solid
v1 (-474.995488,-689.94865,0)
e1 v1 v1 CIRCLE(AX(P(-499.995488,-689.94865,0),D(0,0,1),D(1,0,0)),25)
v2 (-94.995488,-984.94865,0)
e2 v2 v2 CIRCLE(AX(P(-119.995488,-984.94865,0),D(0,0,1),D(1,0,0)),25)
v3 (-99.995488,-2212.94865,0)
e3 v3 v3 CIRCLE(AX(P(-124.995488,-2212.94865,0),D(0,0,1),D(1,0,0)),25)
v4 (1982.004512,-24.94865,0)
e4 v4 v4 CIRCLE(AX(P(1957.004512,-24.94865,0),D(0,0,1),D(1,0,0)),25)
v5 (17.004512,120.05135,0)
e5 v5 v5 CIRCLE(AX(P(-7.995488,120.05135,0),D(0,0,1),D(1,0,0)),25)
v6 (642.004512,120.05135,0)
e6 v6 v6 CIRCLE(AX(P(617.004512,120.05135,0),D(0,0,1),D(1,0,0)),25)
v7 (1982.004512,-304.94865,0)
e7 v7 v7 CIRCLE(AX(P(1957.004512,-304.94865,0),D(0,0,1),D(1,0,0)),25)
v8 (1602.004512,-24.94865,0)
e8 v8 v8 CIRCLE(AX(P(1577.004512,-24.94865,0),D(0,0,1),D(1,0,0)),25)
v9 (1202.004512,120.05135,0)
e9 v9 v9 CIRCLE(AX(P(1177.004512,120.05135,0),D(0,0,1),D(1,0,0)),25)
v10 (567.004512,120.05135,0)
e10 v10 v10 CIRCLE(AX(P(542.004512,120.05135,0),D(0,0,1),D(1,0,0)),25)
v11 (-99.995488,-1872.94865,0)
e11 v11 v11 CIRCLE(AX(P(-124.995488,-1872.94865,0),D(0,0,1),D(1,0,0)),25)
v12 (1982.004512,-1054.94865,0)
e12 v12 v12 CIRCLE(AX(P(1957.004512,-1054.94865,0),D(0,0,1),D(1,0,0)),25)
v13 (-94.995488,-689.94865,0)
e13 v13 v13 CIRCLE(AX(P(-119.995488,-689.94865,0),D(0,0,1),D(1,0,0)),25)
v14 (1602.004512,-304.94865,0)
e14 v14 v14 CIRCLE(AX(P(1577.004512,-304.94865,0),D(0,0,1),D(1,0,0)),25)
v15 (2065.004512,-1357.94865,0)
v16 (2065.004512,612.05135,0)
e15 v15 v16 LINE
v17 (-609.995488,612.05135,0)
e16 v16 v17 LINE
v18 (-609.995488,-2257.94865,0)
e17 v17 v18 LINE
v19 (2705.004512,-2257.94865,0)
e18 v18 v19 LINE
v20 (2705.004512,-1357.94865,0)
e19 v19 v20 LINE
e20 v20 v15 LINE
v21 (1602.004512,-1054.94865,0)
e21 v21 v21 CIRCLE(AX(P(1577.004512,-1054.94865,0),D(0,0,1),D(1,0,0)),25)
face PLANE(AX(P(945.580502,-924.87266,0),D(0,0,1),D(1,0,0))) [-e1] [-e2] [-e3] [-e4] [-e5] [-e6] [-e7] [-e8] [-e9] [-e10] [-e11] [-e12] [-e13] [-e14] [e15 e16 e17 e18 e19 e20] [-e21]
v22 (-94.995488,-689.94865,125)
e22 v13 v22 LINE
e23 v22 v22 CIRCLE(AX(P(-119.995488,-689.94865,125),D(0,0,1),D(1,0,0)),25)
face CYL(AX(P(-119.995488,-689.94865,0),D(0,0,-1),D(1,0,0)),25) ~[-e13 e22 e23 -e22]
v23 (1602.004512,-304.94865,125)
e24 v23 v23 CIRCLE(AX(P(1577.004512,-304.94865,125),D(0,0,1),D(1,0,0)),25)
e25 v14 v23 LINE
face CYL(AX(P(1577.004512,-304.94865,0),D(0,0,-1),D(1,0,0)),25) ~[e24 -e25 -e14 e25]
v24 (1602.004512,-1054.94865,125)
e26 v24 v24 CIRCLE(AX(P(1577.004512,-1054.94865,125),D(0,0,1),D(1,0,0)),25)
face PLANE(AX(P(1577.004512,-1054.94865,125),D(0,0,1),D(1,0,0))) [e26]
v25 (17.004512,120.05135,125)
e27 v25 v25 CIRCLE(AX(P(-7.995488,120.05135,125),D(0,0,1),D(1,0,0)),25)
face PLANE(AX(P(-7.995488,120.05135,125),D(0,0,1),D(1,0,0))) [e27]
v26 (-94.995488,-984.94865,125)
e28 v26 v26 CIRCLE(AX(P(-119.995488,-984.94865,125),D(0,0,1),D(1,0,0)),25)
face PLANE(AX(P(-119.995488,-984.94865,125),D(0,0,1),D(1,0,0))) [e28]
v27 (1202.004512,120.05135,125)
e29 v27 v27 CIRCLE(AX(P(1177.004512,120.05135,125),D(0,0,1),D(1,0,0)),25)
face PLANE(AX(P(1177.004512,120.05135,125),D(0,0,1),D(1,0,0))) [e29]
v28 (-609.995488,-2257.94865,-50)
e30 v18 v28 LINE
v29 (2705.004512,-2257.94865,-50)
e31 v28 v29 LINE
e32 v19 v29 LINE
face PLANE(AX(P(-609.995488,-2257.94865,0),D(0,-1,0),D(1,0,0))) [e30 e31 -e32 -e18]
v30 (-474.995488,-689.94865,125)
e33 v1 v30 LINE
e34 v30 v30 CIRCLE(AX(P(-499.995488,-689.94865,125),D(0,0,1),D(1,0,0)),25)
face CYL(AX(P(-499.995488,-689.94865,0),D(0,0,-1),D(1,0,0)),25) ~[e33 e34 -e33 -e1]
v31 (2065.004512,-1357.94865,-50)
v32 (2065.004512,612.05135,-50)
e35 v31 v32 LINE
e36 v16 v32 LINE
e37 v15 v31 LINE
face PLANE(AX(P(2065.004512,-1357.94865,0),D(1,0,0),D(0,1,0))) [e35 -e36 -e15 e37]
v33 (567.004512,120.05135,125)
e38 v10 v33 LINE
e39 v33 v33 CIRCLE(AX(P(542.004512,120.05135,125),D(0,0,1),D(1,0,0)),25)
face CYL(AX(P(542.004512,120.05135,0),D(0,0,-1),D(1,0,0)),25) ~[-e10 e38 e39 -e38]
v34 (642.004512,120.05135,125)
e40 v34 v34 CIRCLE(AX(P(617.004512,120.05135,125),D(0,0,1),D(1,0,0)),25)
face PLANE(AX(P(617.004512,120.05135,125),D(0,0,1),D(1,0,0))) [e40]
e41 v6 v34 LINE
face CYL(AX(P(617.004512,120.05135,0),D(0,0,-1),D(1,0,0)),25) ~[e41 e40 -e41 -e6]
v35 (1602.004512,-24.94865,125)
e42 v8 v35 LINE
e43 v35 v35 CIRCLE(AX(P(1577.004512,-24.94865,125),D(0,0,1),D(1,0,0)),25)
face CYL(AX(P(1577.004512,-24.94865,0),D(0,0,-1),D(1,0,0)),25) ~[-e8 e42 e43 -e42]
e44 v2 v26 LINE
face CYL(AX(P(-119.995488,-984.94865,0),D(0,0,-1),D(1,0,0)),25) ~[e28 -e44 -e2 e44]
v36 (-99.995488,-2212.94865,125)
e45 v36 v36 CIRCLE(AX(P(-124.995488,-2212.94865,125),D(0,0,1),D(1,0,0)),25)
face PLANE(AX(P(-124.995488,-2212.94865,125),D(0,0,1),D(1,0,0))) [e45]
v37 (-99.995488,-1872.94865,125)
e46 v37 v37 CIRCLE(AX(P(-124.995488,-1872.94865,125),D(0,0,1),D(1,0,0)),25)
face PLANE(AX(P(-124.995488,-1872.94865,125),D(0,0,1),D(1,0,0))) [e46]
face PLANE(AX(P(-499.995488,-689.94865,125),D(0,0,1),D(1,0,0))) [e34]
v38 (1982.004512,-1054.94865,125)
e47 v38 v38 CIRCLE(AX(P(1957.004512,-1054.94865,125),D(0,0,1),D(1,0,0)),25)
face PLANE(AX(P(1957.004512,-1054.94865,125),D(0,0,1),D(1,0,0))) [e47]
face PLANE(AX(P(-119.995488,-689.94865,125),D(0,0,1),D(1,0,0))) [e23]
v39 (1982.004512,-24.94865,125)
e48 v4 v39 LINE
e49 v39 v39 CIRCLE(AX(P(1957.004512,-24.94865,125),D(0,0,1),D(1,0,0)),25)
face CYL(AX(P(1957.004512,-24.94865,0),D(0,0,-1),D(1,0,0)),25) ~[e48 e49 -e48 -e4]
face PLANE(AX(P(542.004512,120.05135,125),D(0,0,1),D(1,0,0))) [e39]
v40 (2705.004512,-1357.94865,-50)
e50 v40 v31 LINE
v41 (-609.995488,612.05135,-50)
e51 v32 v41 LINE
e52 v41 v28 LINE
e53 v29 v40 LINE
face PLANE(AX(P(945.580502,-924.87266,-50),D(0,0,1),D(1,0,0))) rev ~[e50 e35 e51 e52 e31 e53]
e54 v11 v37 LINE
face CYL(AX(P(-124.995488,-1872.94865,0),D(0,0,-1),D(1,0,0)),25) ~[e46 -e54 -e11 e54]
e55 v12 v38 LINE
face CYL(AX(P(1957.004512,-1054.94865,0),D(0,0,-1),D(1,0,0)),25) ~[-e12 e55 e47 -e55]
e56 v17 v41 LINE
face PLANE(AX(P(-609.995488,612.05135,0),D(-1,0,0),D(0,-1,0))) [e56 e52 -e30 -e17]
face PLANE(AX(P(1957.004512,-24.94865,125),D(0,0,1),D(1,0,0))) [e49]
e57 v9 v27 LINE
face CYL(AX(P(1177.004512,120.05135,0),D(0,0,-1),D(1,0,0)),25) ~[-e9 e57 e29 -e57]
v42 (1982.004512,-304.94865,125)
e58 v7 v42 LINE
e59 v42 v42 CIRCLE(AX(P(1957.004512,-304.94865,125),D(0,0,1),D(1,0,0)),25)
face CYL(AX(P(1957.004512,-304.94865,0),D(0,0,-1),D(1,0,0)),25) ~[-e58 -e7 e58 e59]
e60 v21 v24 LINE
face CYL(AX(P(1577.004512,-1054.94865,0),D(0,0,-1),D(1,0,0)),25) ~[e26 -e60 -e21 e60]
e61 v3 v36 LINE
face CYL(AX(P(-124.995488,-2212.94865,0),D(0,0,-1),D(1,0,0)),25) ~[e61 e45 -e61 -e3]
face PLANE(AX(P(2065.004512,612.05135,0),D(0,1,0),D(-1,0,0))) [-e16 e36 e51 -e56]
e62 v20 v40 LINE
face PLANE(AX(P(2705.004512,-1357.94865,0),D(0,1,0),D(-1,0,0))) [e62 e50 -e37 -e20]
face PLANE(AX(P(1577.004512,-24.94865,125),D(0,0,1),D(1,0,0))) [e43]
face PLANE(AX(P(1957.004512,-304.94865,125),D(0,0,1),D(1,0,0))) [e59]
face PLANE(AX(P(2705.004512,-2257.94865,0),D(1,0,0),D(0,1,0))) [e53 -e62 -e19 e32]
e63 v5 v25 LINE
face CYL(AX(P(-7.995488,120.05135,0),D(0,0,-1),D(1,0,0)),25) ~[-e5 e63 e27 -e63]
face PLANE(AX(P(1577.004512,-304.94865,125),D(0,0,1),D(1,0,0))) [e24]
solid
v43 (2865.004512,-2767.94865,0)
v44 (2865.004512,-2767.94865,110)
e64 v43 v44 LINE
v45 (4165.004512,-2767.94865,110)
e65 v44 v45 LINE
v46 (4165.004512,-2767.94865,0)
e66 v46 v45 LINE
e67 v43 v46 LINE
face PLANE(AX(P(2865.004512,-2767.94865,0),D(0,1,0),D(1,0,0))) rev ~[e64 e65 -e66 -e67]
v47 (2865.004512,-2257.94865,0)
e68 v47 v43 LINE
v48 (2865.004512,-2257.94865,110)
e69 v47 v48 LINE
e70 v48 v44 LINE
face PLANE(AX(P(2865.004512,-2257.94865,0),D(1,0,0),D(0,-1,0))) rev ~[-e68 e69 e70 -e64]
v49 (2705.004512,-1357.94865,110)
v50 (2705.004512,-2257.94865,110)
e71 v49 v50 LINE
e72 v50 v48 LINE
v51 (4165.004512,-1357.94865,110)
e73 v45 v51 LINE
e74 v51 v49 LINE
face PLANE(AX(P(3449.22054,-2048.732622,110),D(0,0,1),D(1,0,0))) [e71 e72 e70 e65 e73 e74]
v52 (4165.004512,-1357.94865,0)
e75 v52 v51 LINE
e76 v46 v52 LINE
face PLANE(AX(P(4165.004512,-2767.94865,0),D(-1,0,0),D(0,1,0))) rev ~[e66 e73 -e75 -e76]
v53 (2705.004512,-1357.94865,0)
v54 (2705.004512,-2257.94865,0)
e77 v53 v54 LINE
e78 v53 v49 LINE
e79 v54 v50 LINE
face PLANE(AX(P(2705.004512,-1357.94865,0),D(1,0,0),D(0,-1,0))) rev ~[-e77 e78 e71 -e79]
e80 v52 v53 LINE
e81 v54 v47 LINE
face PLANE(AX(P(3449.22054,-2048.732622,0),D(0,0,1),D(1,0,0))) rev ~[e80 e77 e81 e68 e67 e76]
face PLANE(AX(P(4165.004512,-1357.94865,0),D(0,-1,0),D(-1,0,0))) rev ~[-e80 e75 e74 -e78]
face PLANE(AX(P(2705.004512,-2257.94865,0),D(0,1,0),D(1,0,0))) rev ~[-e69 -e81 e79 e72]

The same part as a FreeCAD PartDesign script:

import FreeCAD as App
import Part
import Sketcher

V = App.Vector


def add_polygon(sketch, points):
    """Adds a closed chain of lines whose ends are joined by coincident constraints."""
    first, n = sketch.GeometryCount, len(points)
    for a, b in zip(points, points[1:] + points[:1]):
        sketch.addGeometry(Part.LineSegment(App.Vector(*a, 0), App.Vector(*b, 0)), False)
    for i in range(n):
        sketch.addConstraint(Sketcher.Constraint("Coincident", first + i, 2, first + (i + 1) % n, 1))

doc = App.newDocument("Part")
body = doc.addObject("PartDesign::Body", "Body")

# Sketch on XY plane
sketch1 = doc.addObject("Sketcher::SketchObject", "Sketch")
body.addObject(sketch1)
sketch1.AttachmentSupport = (doc.XY_Plane, [""])
sketch1.MapMode = "FlatFace"
add_polygon(sketch1, [(-609.995488, 612.05135), (-609.995488, -2257.94865), (2705.004512, -2257.94865), (2705.004512, -1357.94865), (2065.004512, -1357.94865), (2065.004512, 612.05135)])  # lines 0-5
sketch1.addConstraint([
    Sketcher.Constraint("Vertical", 0),
    Sketcher.Constraint("Horizontal", 1),
    Sketcher.Constraint("Vertical", 2),
    Sketcher.Constraint("Horizontal", 3),
    Sketcher.Constraint("Vertical", 4),
    Sketcher.Constraint("Horizontal", 5),
    Sketcher.Constraint("DistanceX", 1, 1, 1, 2, 3315.0),
    Sketcher.Constraint("DistanceX", 3, 2, 3, 1, 640.0),
    Sketcher.Constraint("DistanceY", 0, 2, 0, 1, 2870.0),
    Sketcher.Constraint("DistanceY", 2, 1, 2, 2, 900.0),
    Sketcher.Constraint("DistanceX", 0, 2, -1, 1, 609.995488),
    Sketcher.Constraint("DistanceY", 0, 2, -1, 1, 2257.94865),
])
pad1 = doc.addObject("PartDesign::Pad", "Pad")
body.addObject(pad1)
pad1.Profile = sketch1
pad1.Length = 50
pad1.Reversed = True

# Sketch on XY plane
sketch2 = doc.addObject("Sketcher::SketchObject", "Sketch001")
body.addObject(sketch2)
sketch2.AttachmentSupport = (doc.XY_Plane, [""])
sketch2.MapMode = "FlatFace"
sketch2.addGeometry([
    Part.Circle(V(-7.995488, 120.05135, 0), V(0, 0, 1), 25),  # 0
    Part.Circle(V(-119.995488, -689.94865, 0), V(0, 0, 1), 25),  # 1
    Part.Circle(V(-499.995488, -689.94865, 0), V(0, 0, 1), 25),  # 2
    Part.Circle(V(-119.995488, -984.94865, 0), V(0, 0, 1), 25),  # 3
    Part.Circle(V(617.004512, 120.05135, 0), V(0, 0, 1), 25),  # 4
    Part.Circle(V(542.004512, 120.05135, 0), V(0, 0, 1), 25),  # 5
    Part.Circle(V(1177.004512, 120.05135, 0), V(0, 0, 1), 25),  # 6
    Part.Circle(V(1577.004512, -24.94865, 0), V(0, 0, 1), 25),  # 7
    Part.Circle(V(1577.004512, -304.94865, 0), V(0, 0, 1), 25),  # 8
    Part.Circle(V(-124.995488, -1872.94865, 0), V(0, 0, 1), 25),  # 9
    Part.Circle(V(-124.995488, -2212.94865, 0), V(0, 0, 1), 25),  # 10
    Part.Circle(V(1957.004512, -304.94865, 0), V(0, 0, 1), 25),  # 11
    Part.Circle(V(1957.004512, -24.94865, 0), V(0, 0, 1), 25),  # 12
    Part.Circle(V(1957.004512, -1054.94865, 0), V(0, 0, 1), 25),  # 13
    Part.Circle(V(1577.004512, -1054.94865, 0), V(0, 0, 1), 25),  # 14
], False)
sketch2.addConstraint([
    Sketcher.Constraint("Equal", 0, 1),
    Sketcher.Constraint("Equal", 1, 2),
    Sketcher.Constraint("Equal", 2, 3),
    Sketcher.Constraint("Equal", 3, 4),
    Sketcher.Constraint("Equal", 4, 5),
    Sketcher.Constraint("Equal", 5, 6),
    Sketcher.Constraint("Equal", 6, 7),
    Sketcher.Constraint("Equal", 7, 8),
    Sketcher.Constraint("Equal", 8, 9),
    Sketcher.Constraint("Equal", 9, 10),
    Sketcher.Constraint("Equal", 10, 11),
    Sketcher.Constraint("Equal", 11, 12),
    Sketcher.Constraint("Equal", 12, 13),
    Sketcher.Constraint("Equal", 13, 14),
    Sketcher.Constraint("Horizontal", 1, 3, 2, 3),
    Sketcher.Constraint("Horizontal", 0, 3, 4, 3),
    Sketcher.Constraint("Horizontal", 4, 3, 5, 3),
    Sketcher.Constraint("Horizontal", 5, 3, 6, 3),
    Sketcher.Constraint("Horizontal", 8, 3, 11, 3),
    Sketcher.Constraint("Horizontal", 7, 3, 12, 3),
    Sketcher.Constraint("Horizontal", 13, 3, 14, 3),
    Sketcher.Constraint("Vertical", 1, 3, 3, 3),
    Sketcher.Constraint("Vertical", 7, 3, 8, 3),
    Sketcher.Constraint("Vertical", 9, 3, 10, 3),
    Sketcher.Constraint("Vertical", 11, 3, 12, 3),
    Sketcher.Constraint("Vertical", 12, 3, 13, 3),
    Sketcher.Constraint("Vertical", 8, 3, 14, 3),
    Sketcher.Constraint("Diameter", 0, 50.0),
    Sketcher.Constraint("DistanceX", 1, 3, 0, 3, 112.0),
    Sketcher.Constraint("DistanceY", 1, 3, 0, 3, 810.0),
    Sketcher.Constraint("DistanceX", 2, 3, 1, 3, 380.0),
    Sketcher.Constraint("DistanceY", 3, 3, 1, 3, 295.0),
    Sketcher.Constraint("DistanceX", 0, 3, 4, 3, 625.0),
    Sketcher.Constraint("DistanceX", 5, 3, 4, 3, 75.0),
    Sketcher.Constraint("DistanceX", 4, 3, 6, 3, 560.0),
    Sketcher.Constraint("DistanceX", 6, 3, 7, 3, 400.0),
    Sketcher.Constraint("DistanceY", 7, 3, 6, 3, 145.0),
    Sketcher.Constraint("DistanceY", 8, 3, 7, 3, 280.0),
    Sketcher.Constraint("DistanceX", 9, 3, 3, 3, 5.0),
    Sketcher.Constraint("DistanceY", 9, 3, 3, 3, 888.0),
    Sketcher.Constraint("DistanceY", 10, 3, 9, 3, 340.0),
    Sketcher.Constraint("DistanceX", 8, 3, 11, 3, 380.0),
    Sketcher.Constraint("DistanceY", 13, 3, 11, 3, 750.0),
    Sketcher.Constraint("DistanceY", -1, 1, 0, 3, 120.05135),
    Sketcher.Constraint("DistanceX", 2, 3, -1, 1, 499.995488),
])
pad2 = doc.addObject("PartDesign::Pad", "Pad001")
body.addObject(pad2)
pad2.Profile = sketch2
pad2.Length = 125
body2 = doc.addObject("PartDesign::Body", "Body001")

# Sketch on XY plane
sketch3 = doc.addObject("Sketcher::SketchObject", "Sketch002")
body2.addObject(sketch3)
sketch3.AttachmentSupport = (doc.getObject("XY_Plane001"), [""])
sketch3.MapMode = "FlatFace"
add_polygon(sketch3, [(2705.004512, -1357.94865), (2705.004512, -2257.94865), (2865.004512, -2257.94865), (2865.004512, -2767.94865), (4165.004512, -2767.94865), (4165.004512, -1357.94865)])  # lines 0-5
sketch3.addConstraint([
    Sketcher.Constraint("Vertical", 0),
    Sketcher.Constraint("Horizontal", 1),
    Sketcher.Constraint("Vertical", 2),
    Sketcher.Constraint("Horizontal", 3),
    Sketcher.Constraint("Vertical", 4),
    Sketcher.Constraint("Horizontal", 5),
    Sketcher.Constraint("DistanceX", 1, 1, 1, 2, 160.0),
    Sketcher.Constraint("DistanceX", 3, 1, 3, 2, 1300.0),
    Sketcher.Constraint("DistanceY", 0, 2, 0, 1, 900.0),
    Sketcher.Constraint("DistanceY", 2, 2, 2, 1, 510.0),
    Sketcher.Constraint("DistanceX", -1, 1, 0, 2, 2705.004512),
    Sketcher.Constraint("DistanceY", 0, 2, -1, 1, 2257.94865),
])
pad3 = doc.addObject("PartDesign::Pad", "Pad002")
body2.addObject(pad3)
pad3.Profile = sketch3
pad3.Length = 110

doc.recompute()
